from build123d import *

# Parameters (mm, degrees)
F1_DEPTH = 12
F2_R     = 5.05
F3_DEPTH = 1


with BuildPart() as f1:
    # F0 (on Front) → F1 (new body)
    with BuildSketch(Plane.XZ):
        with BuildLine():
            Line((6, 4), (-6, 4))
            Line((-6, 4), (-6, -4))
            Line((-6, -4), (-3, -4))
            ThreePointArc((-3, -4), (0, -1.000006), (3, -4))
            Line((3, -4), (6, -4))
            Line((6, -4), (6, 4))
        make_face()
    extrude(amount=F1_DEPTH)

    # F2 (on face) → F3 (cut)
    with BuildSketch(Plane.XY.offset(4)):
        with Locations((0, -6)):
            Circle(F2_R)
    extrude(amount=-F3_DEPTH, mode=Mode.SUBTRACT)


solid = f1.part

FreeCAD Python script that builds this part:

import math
import FreeCAD as App
import Part
import Sketcher

doc = App.newDocument("Part")
body = doc.addObject("PartDesign::Body", "Body")

sketch1 = doc.addObject("Sketcher::SketchObject", "Sketch")
body.addObject(sketch1)
sketch1.AttachmentSupport = (doc.XZ_Plane, [""])
sketch1.MapMode = "FlatFace"
sketch1.addGeometry(Part.LineSegment(App.Vector(6, 4, 0), App.Vector(-6, 4, 0)), False)
sketch1.addGeometry(Part.LineSegment(App.Vector(-6, 4, 0), App.Vector(-6, -4, 0)), False)
sketch1.addGeometry(Part.LineSegment(App.Vector(-6, -4, 0), App.Vector(-3, -4, 0)), False)
sketch1.addGeometry(Part.ArcOfCircle(Part.Circle(App.Vector(0, -4.000006, 0), App.Vector(0, 0, 1), 3), math.radians(0.000115), math.radians(179.999885)), False)
sketch1.addGeometry(Part.LineSegment(App.Vector(3, -4, 0), App.Vector(6, -4, 0)), False)
sketch1.addGeometry(Part.LineSegment(App.Vector(6, -4, 0), App.Vector(6, 4, 0)), False)
sketch1.addConstraint(Sketcher.Constraint("Coincident", 0, 2, 1, 1))
sketch1.addConstraint(Sketcher.Constraint("Coincident", 1, 2, 2, 1))
sketch1.addConstraint(Sketcher.Constraint("Coincident", 2, 2, 3, 2))
sketch1.addConstraint(Sketcher.Constraint("Coincident", 3, 1, 4, 1))
sketch1.addConstraint(Sketcher.Constraint("Coincident", 4, 2, 5, 1))
sketch1.addConstraint(Sketcher.Constraint("Coincident", 5, 2, 0, 1))
sketch1.addConstraint(Sketcher.Constraint("Horizontal", 0))
sketch1.addConstraint(Sketcher.Constraint("Vertical", 1))
sketch1.addConstraint(Sketcher.Constraint("Horizontal", 2))
sketch1.addConstraint(Sketcher.Constraint("Horizontal", 4))
sketch1.addConstraint(Sketcher.Constraint("Vertical", 5))
sketch1.addConstraint(Sketcher.Constraint("Symmetric", 0, 2, 4, 2, -1, 1))
sketch1.addConstraint(Sketcher.Constraint("Symmetric", 2, 2, 3, 1, -2))
sketch1.addConstraint(Sketcher.Constraint("Radius", 3, 3.0))
sketch1.addConstraint(Sketcher.Constraint("DistanceX", 0, 2, 0, 1, 12.0))
sketch1.addConstraint(Sketcher.Constraint("DistanceY", 1, 2, 1, 1, 8.0))
sketch1.addConstraint(Sketcher.Constraint("DistanceY", 3, 3, -1, 1, 4.000006))
pad1 = doc.addObject("PartDesign::Pad", "Pad")
body.addObject(pad1)
pad1.Profile = sketch1
pad1.Length = 12

sketch2 = doc.addObject("Sketcher::SketchObject", "Sketch001")
body.addObject(sketch2)
sketch2.AttachmentSupport = (doc.XY_Plane, [""])
sketch2.MapMode = "FlatFace"
sketch2.AttachmentOffset = App.Placement(App.Vector(0, 0, 4), App.Rotation())
sketch2.addGeometry(Part.Circle(App.Vector(0, -6, 0), App.Vector(0, 0, 1), 5.05), False)
sketch2.addConstraint(Sketcher.Constraint("PointOnObject", 0, 3, -2))
sketch2.addConstraint(Sketcher.Constraint("Diameter", 0, 10.1))
sketch2.addConstraint(Sketcher.Constraint("DistanceY", 0, 3, -1, 1, 6.0))
pocket1 = doc.addObject("PartDesign::Pocket", "Pocket")
body.addObject(pocket1)
pocket1.Profile = sketch2
pocket1.Length = 1

doc.recompute()
